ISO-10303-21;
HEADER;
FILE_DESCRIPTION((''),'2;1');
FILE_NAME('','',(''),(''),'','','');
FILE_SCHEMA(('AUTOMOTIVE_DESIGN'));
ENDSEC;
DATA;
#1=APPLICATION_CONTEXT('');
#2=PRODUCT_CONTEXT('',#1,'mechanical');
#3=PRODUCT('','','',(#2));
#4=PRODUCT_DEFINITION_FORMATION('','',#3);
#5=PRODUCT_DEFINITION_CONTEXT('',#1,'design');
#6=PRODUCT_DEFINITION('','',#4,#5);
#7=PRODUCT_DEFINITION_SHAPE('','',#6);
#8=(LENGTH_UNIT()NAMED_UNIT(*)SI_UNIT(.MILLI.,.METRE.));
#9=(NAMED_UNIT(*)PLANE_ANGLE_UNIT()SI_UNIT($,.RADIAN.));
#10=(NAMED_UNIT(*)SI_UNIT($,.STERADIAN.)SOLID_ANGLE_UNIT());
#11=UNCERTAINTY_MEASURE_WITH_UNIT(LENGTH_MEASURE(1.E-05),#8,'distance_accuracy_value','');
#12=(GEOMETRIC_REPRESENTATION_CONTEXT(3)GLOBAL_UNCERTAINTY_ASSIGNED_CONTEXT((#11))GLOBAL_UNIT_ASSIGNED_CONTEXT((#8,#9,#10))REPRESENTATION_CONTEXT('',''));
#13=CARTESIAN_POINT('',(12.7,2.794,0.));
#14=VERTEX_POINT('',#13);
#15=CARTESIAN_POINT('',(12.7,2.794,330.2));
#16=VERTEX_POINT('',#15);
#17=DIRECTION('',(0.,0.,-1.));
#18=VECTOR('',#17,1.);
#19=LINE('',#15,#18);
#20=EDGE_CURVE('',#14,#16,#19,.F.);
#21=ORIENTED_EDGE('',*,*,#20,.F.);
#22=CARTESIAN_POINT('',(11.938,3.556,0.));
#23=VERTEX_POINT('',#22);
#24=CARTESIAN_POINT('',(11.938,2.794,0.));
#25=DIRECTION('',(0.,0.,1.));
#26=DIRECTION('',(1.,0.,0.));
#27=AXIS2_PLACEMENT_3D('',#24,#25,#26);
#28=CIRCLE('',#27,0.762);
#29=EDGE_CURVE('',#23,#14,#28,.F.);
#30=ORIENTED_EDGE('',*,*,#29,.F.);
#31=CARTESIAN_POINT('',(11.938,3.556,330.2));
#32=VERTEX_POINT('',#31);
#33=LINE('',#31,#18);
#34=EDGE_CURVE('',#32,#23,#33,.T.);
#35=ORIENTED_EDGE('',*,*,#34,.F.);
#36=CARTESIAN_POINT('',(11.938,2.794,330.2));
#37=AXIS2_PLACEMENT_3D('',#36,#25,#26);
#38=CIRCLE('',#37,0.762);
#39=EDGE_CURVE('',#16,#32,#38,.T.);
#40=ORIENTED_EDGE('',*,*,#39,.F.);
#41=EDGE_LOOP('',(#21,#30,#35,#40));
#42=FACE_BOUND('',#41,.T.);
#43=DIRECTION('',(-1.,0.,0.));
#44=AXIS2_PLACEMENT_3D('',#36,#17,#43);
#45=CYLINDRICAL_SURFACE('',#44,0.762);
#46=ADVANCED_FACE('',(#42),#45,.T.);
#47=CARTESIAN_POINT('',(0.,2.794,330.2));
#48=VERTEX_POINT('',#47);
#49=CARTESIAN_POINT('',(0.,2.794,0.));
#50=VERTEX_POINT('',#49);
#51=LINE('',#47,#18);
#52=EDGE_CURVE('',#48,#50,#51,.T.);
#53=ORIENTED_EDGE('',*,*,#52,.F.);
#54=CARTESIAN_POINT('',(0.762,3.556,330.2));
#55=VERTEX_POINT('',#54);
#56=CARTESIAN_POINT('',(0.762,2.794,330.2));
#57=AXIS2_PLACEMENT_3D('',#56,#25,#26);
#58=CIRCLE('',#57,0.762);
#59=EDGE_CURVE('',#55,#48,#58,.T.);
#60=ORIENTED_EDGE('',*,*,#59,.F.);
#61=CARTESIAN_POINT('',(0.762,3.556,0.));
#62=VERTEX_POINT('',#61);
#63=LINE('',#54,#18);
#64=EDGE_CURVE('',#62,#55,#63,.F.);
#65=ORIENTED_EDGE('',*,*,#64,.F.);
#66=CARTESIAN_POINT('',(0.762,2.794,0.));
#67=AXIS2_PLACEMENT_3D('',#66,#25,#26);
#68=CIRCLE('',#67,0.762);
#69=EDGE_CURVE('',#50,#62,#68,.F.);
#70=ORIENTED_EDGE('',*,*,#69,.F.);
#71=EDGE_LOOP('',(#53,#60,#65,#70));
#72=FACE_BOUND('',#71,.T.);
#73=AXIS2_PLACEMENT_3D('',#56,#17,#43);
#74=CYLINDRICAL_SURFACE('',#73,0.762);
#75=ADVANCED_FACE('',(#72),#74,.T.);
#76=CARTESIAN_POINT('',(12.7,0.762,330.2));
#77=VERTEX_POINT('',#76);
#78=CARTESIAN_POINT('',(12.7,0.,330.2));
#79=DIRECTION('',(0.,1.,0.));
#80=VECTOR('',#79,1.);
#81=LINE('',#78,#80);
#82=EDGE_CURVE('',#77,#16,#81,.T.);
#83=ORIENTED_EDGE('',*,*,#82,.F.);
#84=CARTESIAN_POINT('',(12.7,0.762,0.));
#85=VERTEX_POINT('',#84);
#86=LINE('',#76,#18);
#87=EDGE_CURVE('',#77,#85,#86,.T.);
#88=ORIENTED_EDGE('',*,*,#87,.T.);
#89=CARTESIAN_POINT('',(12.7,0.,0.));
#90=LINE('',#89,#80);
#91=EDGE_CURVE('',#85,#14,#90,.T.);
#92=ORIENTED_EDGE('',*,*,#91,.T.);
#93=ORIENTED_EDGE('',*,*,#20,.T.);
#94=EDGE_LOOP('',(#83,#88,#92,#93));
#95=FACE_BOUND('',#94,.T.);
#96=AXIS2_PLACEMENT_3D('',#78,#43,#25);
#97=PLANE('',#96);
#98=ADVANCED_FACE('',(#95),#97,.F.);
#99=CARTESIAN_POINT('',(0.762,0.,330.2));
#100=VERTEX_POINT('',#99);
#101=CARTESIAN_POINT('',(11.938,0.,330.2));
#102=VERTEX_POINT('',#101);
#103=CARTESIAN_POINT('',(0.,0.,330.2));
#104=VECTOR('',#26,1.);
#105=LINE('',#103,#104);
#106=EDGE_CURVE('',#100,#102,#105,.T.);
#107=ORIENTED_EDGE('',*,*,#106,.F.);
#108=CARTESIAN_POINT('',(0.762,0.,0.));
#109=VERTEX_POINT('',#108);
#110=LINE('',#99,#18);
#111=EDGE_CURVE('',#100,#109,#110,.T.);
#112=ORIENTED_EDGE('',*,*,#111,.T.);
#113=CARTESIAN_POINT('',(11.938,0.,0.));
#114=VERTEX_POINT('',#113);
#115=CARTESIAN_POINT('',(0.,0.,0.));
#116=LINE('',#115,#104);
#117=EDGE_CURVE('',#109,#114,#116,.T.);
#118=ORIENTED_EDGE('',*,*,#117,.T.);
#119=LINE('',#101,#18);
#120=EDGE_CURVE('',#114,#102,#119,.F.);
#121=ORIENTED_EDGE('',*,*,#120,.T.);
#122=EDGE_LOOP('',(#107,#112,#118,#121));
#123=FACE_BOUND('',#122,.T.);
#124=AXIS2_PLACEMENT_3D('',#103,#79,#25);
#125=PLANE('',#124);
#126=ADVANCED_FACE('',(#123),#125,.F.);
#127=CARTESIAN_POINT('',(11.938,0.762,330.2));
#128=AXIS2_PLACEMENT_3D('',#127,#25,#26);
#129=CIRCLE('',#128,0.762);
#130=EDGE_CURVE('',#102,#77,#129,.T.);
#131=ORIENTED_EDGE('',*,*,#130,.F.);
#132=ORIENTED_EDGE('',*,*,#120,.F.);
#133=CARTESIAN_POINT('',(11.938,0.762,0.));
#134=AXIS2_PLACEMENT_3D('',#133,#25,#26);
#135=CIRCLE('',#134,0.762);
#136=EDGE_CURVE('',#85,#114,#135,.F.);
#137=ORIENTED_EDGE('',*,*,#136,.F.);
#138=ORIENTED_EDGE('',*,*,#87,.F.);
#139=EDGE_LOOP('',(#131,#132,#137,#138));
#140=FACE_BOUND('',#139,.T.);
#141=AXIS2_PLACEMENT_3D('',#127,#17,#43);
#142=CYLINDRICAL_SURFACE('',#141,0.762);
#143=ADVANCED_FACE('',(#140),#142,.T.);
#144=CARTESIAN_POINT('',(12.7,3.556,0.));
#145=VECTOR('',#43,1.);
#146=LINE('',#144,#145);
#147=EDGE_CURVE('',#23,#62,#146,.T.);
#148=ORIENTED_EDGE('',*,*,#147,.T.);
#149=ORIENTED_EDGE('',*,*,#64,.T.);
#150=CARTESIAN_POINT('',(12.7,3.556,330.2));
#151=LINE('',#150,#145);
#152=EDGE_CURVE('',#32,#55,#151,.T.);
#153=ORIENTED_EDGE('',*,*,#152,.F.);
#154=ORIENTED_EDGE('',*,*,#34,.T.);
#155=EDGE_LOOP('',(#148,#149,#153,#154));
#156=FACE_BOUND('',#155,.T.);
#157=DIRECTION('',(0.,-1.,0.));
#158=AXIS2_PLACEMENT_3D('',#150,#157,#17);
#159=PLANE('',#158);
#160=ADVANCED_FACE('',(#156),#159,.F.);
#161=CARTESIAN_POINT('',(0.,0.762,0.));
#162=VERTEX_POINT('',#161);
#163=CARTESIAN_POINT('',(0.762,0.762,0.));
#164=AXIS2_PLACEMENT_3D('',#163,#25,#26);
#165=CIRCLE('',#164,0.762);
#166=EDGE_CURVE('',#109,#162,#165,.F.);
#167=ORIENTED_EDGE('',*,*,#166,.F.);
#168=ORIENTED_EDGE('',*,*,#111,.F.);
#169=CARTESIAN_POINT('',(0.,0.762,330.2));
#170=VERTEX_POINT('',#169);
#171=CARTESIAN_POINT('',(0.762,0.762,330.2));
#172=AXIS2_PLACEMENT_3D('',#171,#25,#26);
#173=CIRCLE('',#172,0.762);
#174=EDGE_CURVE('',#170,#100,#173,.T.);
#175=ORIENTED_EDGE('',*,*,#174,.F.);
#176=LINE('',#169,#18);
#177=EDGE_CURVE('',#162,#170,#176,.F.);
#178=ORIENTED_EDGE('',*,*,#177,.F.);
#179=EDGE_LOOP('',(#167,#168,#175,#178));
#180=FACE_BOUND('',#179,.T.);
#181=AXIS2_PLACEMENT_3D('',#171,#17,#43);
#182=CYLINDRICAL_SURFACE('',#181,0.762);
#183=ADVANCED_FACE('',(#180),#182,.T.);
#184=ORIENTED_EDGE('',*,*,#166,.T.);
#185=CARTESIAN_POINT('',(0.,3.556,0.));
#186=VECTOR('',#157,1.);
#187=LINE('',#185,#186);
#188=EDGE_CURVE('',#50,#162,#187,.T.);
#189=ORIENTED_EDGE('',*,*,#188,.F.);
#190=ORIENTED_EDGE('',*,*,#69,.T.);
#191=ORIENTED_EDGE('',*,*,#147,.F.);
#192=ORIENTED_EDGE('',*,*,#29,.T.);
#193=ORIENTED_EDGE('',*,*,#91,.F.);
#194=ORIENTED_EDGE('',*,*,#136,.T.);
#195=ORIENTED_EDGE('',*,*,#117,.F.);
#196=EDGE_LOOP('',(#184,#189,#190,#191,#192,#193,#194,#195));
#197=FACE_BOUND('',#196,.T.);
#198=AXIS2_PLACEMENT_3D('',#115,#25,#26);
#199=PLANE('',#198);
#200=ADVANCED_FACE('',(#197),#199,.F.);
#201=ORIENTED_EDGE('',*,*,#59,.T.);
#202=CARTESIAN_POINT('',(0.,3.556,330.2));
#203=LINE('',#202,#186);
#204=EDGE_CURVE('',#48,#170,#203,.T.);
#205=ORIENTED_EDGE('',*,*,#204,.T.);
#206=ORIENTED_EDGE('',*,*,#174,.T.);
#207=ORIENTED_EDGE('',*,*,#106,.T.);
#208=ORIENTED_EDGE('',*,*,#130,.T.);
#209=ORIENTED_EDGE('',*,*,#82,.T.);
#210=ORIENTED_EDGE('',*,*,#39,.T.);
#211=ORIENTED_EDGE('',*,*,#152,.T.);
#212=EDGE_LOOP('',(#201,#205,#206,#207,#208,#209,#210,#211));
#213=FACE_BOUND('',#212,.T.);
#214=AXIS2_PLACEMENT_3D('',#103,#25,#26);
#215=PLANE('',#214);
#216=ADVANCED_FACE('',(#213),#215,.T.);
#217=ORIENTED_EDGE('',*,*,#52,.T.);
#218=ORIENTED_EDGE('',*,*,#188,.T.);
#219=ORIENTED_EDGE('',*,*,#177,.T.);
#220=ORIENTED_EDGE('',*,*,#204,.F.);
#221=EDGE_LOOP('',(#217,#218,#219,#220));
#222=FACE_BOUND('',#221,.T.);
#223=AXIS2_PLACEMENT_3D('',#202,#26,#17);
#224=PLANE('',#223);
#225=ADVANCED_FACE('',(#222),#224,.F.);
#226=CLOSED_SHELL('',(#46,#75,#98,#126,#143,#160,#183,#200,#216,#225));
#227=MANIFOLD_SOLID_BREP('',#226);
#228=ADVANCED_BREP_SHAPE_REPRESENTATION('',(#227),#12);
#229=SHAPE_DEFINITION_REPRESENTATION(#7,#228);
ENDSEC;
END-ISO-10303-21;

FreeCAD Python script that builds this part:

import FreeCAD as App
import Part
import Sketcher

V = App.Vector
Q = App.Units.Quantity


def edges_at(feature, points):
    """Names of the edges that pass closest to the given points."""
    edges = feature.Shape.Edges
    near = lambda p: min(range(len(edges)), key=lambda i: edges[i].distToShape(Part.Vertex(*p))[0])
    return sorted({f"Edge{near(p) + 1}" for p in points})


def add_polygon(sketch, points):
    """Adds a closed chain of lines whose ends are joined by coincident constraints."""
    first, n = sketch.GeometryCount, len(points)
    for a, b in zip(points, points[1:] + points[:1]):
        sketch.addGeometry(Part.LineSegment(App.Vector(*a, 0), App.Vector(*b, 0)), False)
    for i in range(n):
        sketch.addConstraint(Sketcher.Constraint("Coincident", first + i, 2, first + (i + 1) % n, 1))

doc = App.newDocument("Part")
body = doc.addObject("PartDesign::Body", "Body")

# Sketch on XY plane
sketch1 = body.newObject("Sketcher::SketchObject", "Sketch")
sketch1.AttachmentSupport = (doc.getObject("XY_Plane"), [""])
sketch1.MapMode = "FlatFace"
add_polygon(sketch1, [(0, 3.6), (0, 0), (12.7, 0), (12.7, 3.6)])  # lines 0-3
sketch1.addConstraint([
    Sketcher.Constraint("Vertical", 0),
    Sketcher.Constraint("Horizontal", 1),
    Sketcher.Constraint("Vertical", 2),
    Sketcher.Constraint("Horizontal", 3),
    Sketcher.Constraint("Coincident", 0, 2, -1, 1),
    Sketcher.Constraint("DistanceX", 1, 1, 1, 2, Q("0.5 in")),
    Sketcher.Constraint("DistanceY", 0, 2, 0, 1, Q("0.14 in")),
])
pad1 = body.newObject("PartDesign::Pad", "Pad")
pad1.Profile = sketch1
pad1.Length = Q("13 in")
doc.recompute()

fillet = body.newObject("PartDesign::Fillet", "Fillet")
fillet.Base = (pad1, edges_at(pad1, [
    (0, 3.556, 165.1),
    (12.7, 3.556, 165.1),
    (12.7, 0, 165.1),
    (0, 0, 165.1),
]))
fillet.Radius = Q("0.03 in")

doc.recompute()
